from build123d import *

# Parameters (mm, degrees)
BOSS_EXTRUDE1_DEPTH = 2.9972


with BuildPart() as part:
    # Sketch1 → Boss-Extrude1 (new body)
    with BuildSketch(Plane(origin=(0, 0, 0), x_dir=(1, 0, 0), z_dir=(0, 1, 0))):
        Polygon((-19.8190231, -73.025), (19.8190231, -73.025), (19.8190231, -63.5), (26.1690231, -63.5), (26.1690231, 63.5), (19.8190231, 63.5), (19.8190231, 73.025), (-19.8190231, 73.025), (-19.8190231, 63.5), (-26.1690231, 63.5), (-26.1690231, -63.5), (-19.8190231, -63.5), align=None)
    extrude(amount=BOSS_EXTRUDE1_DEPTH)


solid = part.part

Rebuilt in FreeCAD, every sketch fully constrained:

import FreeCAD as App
import Part
import Sketcher
from FreeCAD import Vector
Q = App.Units.Quantity

doc = App.newDocument("Part")
body = doc.addObject("PartDesign::Body", "Body")

# Sketch on XZ plane
sketch1 = body.newObject("Sketcher::SketchObject", "Sketch")
sketch1.AttachmentSupport = (doc.getObject("XZ_Plane"), [""])
sketch1.MapMode = "FlatFace"
sketch1.addGeometry([
    Part.LineSegment(Vector(-20, 73, 0), Vector(20, 73, 0)),  # 0
    Part.LineSegment(Vector(20, 73, 0), Vector(20, 64, 0)),  # 1
    Part.LineSegment(Vector(20, 64, 0), Vector(26, 64, 0)),  # 2
    Part.LineSegment(Vector(26, 64, 0), Vector(26, -64, 0)),  # 3
    Part.LineSegment(Vector(26, -64, 0), Vector(20, -64, 0)),  # 4
    Part.LineSegment(Vector(20, -64, 0), Vector(20, -73, 0)),  # 5
    Part.LineSegment(Vector(20, -73, 0), Vector(-20, -73, 0)),  # 6
    Part.LineSegment(Vector(-20, -73, 0), Vector(-20, -64, 0)),  # 7
    Part.LineSegment(Vector(-20, -64, 0), Vector(-26, -64, 0)),  # 8
    Part.LineSegment(Vector(-26, -64, 0), Vector(-26, 64, 0)),  # 9
    Part.LineSegment(Vector(-26, 64, 0), Vector(-20, 64, 0)),  # 10
    Part.LineSegment(Vector(-20, 64, 0), Vector(-20, 73, 0)),  # 11
], False)
sketch1.addConstraint([
    Sketcher.Constraint("Coincident", 0, 2, 1, 1),
    Sketcher.Constraint("Coincident", 1, 2, 2, 1),
    Sketcher.Constraint("Coincident", 2, 2, 3, 1),
    Sketcher.Constraint("Coincident", 3, 2, 4, 1),
    Sketcher.Constraint("Coincident", 4, 2, 5, 1),
    Sketcher.Constraint("Coincident", 5, 2, 6, 1),
    Sketcher.Constraint("Coincident", 6, 2, 7, 1),
    Sketcher.Constraint("Coincident", 7, 2, 8, 1),
    Sketcher.Constraint("Coincident", 8, 2, 9, 1),
    Sketcher.Constraint("Coincident", 9, 2, 10, 1),
    Sketcher.Constraint("Coincident", 10, 2, 11, 1),
    Sketcher.Constraint("Coincident", 11, 2, 0, 1),
    Sketcher.Constraint("Horizontal", 0),
    Sketcher.Constraint("Vertical", 1),
    Sketcher.Constraint("Horizontal", 2),
    Sketcher.Constraint("Vertical", 3),
    Sketcher.Constraint("Horizontal", 4),
    Sketcher.Constraint("Vertical", 5),
    Sketcher.Constraint("Horizontal", 6),
    Sketcher.Constraint("Vertical", 7),
    Sketcher.Constraint("Horizontal", 8),
    Sketcher.Constraint("Vertical", 9),
    Sketcher.Constraint("Horizontal", 10),
    Sketcher.Constraint("Vertical", 11),
    Sketcher.Constraint("Symmetric", 0, 2, 6, 2, -1, 1),
    Sketcher.Constraint("Symmetric", 2, 2, 8, 2, -1, 1),
    Sketcher.Constraint("Symmetric", 4, 2, 10, 2, -1, 1),
    Sketcher.Constraint("Symmetric", 4, 2, 7, 2, -2),
    Sketcher.Constraint("DistanceY", 3, 2, 3, 1, Q("5 in")),
    Sketcher.Constraint("DistanceX", 2, 1, 2, 2, Q("0.25 in")),
    Sketcher.Constraint("DistanceY", 1, 2, 1, 1, Q("0.375 in")),
    Sketcher.Constraint("DistanceX", 0, 1, 0, 2, Q("39.638046 mm")),
])
pad1 = body.newObject("PartDesign::Pad", "Pad")
pad1.Profile = sketch1
pad1.Length = Q("0.118 in")
pad1.Reversed = True

doc.recompute()
